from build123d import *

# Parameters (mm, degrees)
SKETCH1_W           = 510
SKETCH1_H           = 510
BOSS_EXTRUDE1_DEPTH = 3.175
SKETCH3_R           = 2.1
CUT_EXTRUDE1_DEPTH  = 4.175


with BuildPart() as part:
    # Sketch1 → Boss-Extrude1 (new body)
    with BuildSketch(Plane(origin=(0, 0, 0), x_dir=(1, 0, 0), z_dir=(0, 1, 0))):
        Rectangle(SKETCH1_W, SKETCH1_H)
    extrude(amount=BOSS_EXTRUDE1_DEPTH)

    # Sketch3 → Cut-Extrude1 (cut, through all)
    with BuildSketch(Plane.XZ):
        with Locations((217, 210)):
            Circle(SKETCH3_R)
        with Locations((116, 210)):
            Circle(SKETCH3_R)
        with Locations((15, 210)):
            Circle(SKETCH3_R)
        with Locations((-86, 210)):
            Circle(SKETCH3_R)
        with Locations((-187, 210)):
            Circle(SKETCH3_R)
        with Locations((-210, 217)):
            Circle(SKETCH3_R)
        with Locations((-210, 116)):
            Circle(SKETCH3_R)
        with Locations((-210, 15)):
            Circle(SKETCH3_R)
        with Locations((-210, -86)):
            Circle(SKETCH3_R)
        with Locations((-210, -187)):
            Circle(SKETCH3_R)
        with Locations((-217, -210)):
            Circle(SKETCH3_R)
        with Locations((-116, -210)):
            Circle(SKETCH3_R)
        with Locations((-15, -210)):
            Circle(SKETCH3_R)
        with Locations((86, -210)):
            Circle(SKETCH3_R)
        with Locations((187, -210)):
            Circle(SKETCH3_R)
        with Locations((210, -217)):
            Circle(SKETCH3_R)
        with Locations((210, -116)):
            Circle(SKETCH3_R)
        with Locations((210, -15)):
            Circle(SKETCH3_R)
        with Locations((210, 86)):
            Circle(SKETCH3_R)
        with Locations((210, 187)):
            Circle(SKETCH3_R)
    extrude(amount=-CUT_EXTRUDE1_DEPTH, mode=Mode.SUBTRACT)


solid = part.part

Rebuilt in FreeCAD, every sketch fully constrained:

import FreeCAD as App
import Part
import Sketcher
from FreeCAD import Vector


def add_polygon(sketch, points):
    """Adds a closed chain of lines whose ends are joined by coincident constraints."""
    first, n = sketch.GeometryCount, len(points)
    for a, b in zip(points, points[1:] + points[:1]):
        sketch.addGeometry(Part.LineSegment(App.Vector(*a, 0), App.Vector(*b, 0)), False)
    for i in range(n):
        sketch.addConstraint(Sketcher.Constraint("Coincident", first + i, 2, first + (i + 1) % n, 1))

doc = App.newDocument("Part")
body = doc.addObject("PartDesign::Body", "Body")

# Sketch on XZ plane
sketch1 = body.newObject("Sketcher::SketchObject", "Sketch")
sketch1.AttachmentSupport = (doc.getObject("XZ_Plane"), [""])
sketch1.MapMode = "FlatFace"
add_polygon(sketch1, [(-255, -255), (-255, 255), (255, 255), (255, -255)])  # lines 0-3
sketch1.addConstraint([
    Sketcher.Constraint("Vertical", 0),
    Sketcher.Constraint("Horizontal", 1),
    Sketcher.Constraint("Vertical", 2),
    Sketcher.Constraint("Horizontal", 3),
    Sketcher.Constraint("Symmetric", 0, 2, 2, 2, -1, 1),
    Sketcher.Constraint("Equal", 3, 0),
    Sketcher.Constraint("DistanceX", 1, 1, 1, 2, 510.0),
])
pad1 = body.newObject("PartDesign::Pad", "Pad")
pad1.Profile = sketch1
pad1.Length = 3.175
pad1.Reversed = True

# Sketch on XZ plane
sketch2 = body.newObject("Sketcher::SketchObject", "Sketch001")
sketch2.AttachmentSupport = (doc.getObject("XZ_Plane"), [""])
sketch2.MapMode = "FlatFace"
sketch2.addGeometry([
    Part.Circle(Vector(217, 210, 0), Vector(0, 0, 1), 2.1),  # 0
    Part.Circle(Vector(116, 210, 0), Vector(0, 0, 1), 2.1),  # 1
    Part.Circle(Vector(15, 210, 0), Vector(0, 0, 1), 2.1),  # 2
    Part.Circle(Vector(-86, 210, 0), Vector(0, 0, 1), 2.1),  # 3
    Part.Circle(Vector(-187, 210, 0), Vector(0, 0, 1), 2.1),  # 4
    Part.Circle(Vector(-210, 217, 0), Vector(0, 0, 1), 2.1),  # 5
    Part.Circle(Vector(-210, 116, 0), Vector(0, 0, 1), 2.1),  # 6
    Part.Circle(Vector(-210, 15, 0), Vector(0, 0, 1), 2.1),  # 7
    Part.Circle(Vector(-210, -86, 0), Vector(0, 0, 1), 2.1),  # 8
    Part.Circle(Vector(-210, -187, 0), Vector(0, 0, 1), 2.1),  # 9
    Part.Circle(Vector(-217, -210, 0), Vector(0, 0, 1), 2.1),  # 10
    Part.Circle(Vector(-116, -210, 0), Vector(0, 0, 1), 2.1),  # 11
    Part.Circle(Vector(-15, -210, 0), Vector(0, 0, 1), 2.1),  # 12
    Part.Circle(Vector(86, -210, 0), Vector(0, 0, 1), 2.1),  # 13
    Part.Circle(Vector(187, -210, 0), Vector(0, 0, 1), 2.1),  # 14
    Part.Circle(Vector(210, -217, 0), Vector(0, 0, 1), 2.1),  # 15
    Part.Circle(Vector(210, -116, 0), Vector(0, 0, 1), 2.1),  # 16
    Part.Circle(Vector(210, -15, 0), Vector(0, 0, 1), 2.1),  # 17
    Part.Circle(Vector(210, 86, 0), Vector(0, 0, 1), 2.1),  # 18
    Part.Circle(Vector(210, 187, 0), Vector(0, 0, 1), 2.1),  # 19
], False)
sketch2.addConstraint([
    Sketcher.Constraint("Equal", 0, 1),
    Sketcher.Constraint("Equal", 1, 2),
    Sketcher.Constraint("Equal", 2, 3),
    Sketcher.Constraint("Equal", 3, 4),
    Sketcher.Constraint("Equal", 4, 5),
    Sketcher.Constraint("Equal", 5, 6),
    Sketcher.Constraint("Equal", 6, 7),
    Sketcher.Constraint("Equal", 7, 8),
    Sketcher.Constraint("Equal", 8, 9),
    Sketcher.Constraint("Equal", 9, 10),
    Sketcher.Constraint("Equal", 10, 11),
    Sketcher.Constraint("Equal", 11, 12),
    Sketcher.Constraint("Equal", 12, 13),
    Sketcher.Constraint("Equal", 13, 14),
    Sketcher.Constraint("Equal", 14, 15),
    Sketcher.Constraint("Equal", 15, 16),
    Sketcher.Constraint("Equal", 16, 17),
    Sketcher.Constraint("Equal", 17, 18),
    Sketcher.Constraint("Equal", 18, 19),
    Sketcher.Constraint("Symmetric", 0, 3, 10, 3, -1, 1),
    Sketcher.Constraint("Symmetric", 1, 3, 11, 3, -1, 1),
    Sketcher.Constraint("Symmetric", 2, 3, 12, 3, -1, 1),
    Sketcher.Constraint("Symmetric", 3, 3, 13, 3, -1, 1),
    Sketcher.Constraint("Symmetric", 4, 3, 14, 3, -1, 1),
    Sketcher.Constraint("Symmetric", 5, 3, 15, 3, -1, 1),
    Sketcher.Constraint("Symmetric", 6, 3, 16, 3, -1, 1),
    Sketcher.Constraint("Symmetric", 7, 3, 17, 3, -1, 1),
    Sketcher.Constraint("Symmetric", 8, 3, 18, 3, -1, 1),
    Sketcher.Constraint("Symmetric", 9, 3, 19, 3, -1, 1),
    Sketcher.Constraint("Horizontal", 0, 3, 1, 3),
    Sketcher.Constraint("Horizontal", 1, 3, 2, 3),
    Sketcher.Constraint("Horizontal", 2, 3, 3, 3),
    Sketcher.Constraint("Horizontal", 3, 3, 4, 3),
    Sketcher.Constraint("Vertical", 5, 3, 6, 3),
    Sketcher.Constraint("Vertical", 6, 3, 7, 3),
    Sketcher.Constraint("Vertical", 7, 3, 8, 3),
    Sketcher.Constraint("Vertical", 8, 3, 9, 3),
    Sketcher.Constraint("Diameter", 0, 4.2),
    Sketcher.Constraint("DistanceX", -1, 1, 0, 3, 217.0),
    Sketcher.Constraint("DistanceY", -1, 1, 0, 3, 210.0),
    Sketcher.Constraint("DistanceX", -1, 1, 1, 3, 116.0),
    Sketcher.Constraint("DistanceX", -1, 1, 2, 3, 15.0),
    Sketcher.Constraint("DistanceX", 3, 3, -1, 1, 86.0),
    Sketcher.Constraint("DistanceX", 4, 3, -1, 1, 187.0),
    Sketcher.Constraint("DistanceX", 5, 3, -1, 1, 210.0),
    Sketcher.Constraint("DistanceY", -1, 1, 5, 3, 217.0),
    Sketcher.Constraint("DistanceY", -1, 1, 6, 3, 116.0),
    Sketcher.Constraint("DistanceY", -1, 1, 7, 3, 15.0),
    Sketcher.Constraint("DistanceY", 8, 3, -1, 1, 86.0),
    Sketcher.Constraint("DistanceY", 9, 3, -1, 1, 187.0),
])
pocket1 = body.newObject("PartDesign::Pocket", "Pocket")
pocket1.Profile = sketch2
pocket1.Type = "ThroughAll"

doc.recompute()
